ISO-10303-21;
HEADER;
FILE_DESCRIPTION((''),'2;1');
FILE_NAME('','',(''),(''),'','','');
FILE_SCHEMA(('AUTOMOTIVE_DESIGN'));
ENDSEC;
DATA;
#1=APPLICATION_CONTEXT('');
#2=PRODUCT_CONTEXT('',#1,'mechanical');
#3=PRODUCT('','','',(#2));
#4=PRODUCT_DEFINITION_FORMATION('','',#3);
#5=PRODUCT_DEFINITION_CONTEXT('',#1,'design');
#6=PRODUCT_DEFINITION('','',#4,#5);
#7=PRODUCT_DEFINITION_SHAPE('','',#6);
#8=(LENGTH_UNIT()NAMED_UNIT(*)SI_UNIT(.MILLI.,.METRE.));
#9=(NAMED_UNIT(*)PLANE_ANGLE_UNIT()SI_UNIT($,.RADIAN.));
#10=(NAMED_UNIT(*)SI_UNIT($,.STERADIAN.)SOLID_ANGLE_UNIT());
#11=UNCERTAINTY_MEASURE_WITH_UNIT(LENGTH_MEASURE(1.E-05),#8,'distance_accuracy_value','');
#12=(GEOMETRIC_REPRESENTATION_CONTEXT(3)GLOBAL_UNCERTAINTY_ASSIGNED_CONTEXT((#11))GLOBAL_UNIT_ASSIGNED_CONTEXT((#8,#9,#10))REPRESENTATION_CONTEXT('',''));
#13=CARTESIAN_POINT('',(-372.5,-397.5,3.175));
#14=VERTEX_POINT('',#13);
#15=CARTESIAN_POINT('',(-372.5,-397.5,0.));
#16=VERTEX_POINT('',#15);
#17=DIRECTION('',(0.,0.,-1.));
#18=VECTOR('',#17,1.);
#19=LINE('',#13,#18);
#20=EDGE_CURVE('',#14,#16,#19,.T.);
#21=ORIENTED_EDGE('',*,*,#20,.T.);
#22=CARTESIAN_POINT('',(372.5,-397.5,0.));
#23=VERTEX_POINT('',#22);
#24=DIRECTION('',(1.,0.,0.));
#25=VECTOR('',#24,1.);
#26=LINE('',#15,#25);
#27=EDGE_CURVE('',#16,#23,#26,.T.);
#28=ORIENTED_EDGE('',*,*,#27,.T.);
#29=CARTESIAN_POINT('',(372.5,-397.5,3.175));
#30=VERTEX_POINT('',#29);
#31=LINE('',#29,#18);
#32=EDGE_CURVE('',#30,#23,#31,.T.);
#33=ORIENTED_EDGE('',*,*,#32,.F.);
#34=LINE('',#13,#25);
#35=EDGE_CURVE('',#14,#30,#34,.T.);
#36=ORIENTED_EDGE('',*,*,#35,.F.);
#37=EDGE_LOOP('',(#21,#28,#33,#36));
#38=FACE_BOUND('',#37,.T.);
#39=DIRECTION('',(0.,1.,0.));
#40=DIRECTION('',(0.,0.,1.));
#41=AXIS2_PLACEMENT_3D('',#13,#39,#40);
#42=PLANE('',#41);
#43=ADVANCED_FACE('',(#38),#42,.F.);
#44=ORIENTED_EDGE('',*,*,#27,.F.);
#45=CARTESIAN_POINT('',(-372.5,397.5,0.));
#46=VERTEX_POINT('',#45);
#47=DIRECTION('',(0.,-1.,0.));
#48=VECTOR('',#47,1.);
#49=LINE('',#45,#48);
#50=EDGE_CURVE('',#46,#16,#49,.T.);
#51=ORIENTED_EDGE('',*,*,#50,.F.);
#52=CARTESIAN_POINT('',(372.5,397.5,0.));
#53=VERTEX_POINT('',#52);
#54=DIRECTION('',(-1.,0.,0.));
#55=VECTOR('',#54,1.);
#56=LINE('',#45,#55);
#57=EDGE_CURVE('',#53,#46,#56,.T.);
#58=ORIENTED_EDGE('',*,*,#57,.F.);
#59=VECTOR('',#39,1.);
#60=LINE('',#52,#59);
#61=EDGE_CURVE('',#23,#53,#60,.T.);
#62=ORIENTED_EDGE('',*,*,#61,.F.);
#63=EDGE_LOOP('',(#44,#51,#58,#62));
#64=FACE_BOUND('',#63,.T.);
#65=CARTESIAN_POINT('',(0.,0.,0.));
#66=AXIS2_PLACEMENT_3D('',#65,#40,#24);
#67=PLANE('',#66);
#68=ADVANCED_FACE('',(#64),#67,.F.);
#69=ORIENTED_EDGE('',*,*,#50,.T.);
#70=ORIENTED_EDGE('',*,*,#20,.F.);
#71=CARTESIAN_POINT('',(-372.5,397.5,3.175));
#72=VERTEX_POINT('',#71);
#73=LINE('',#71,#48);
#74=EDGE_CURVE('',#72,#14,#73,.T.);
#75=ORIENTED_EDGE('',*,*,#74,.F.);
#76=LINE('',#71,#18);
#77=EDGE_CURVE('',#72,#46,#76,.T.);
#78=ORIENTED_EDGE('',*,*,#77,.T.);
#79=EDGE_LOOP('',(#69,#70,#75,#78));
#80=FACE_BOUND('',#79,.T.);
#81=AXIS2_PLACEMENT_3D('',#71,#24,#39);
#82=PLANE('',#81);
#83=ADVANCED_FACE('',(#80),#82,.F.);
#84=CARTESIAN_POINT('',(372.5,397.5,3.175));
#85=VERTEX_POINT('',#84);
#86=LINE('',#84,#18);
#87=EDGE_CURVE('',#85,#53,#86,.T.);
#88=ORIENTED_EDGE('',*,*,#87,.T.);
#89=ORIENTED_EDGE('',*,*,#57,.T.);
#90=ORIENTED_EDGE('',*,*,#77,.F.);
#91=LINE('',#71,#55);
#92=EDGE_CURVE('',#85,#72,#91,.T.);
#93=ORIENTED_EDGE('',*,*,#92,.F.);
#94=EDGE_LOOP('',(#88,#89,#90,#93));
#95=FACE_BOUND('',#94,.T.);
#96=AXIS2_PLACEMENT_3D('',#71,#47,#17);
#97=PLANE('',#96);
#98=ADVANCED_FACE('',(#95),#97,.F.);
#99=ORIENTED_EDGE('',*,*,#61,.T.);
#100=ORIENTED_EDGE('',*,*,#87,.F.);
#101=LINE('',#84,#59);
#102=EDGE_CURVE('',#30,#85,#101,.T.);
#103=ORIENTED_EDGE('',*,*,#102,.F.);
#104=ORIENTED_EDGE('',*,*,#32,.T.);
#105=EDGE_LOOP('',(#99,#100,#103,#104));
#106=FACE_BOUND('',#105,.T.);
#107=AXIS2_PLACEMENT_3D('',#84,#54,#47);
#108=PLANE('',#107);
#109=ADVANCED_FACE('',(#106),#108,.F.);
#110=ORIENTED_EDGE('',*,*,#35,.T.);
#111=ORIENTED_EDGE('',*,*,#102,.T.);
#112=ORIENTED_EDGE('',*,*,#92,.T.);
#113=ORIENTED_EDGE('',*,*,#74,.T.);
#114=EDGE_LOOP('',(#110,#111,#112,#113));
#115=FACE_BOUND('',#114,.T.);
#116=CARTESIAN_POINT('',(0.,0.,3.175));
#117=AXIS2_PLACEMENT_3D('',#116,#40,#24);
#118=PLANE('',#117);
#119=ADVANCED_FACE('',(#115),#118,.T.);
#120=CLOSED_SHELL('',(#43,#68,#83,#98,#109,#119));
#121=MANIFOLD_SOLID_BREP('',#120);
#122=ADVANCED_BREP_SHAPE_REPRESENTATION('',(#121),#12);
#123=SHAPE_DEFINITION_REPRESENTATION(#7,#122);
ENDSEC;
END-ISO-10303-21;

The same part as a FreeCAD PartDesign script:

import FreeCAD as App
import Part
import Sketcher

V = App.Vector


def add_polygon(sketch, points):
    """Adds a closed chain of lines whose ends are joined by coincident constraints."""
    first, n = sketch.GeometryCount, len(points)
    for a, b in zip(points, points[1:] + points[:1]):
        sketch.addGeometry(Part.LineSegment(App.Vector(*a, 0), App.Vector(*b, 0)), False)
    for i in range(n):
        sketch.addConstraint(Sketcher.Constraint("Coincident", first + i, 2, first + (i + 1) % n, 1))

doc = App.newDocument("Part")
body = doc.addObject("PartDesign::Body", "Body")

sketch1 = body.newObject("Sketcher::SketchObject", "Sketch")
sketch1.AttachmentSupport = (doc.getObject("XY_Plane"), [""])
sketch1.MapMode = "FlatFace"
add_polygon(sketch1, [(-372, 398), (-372, -398), (372, -398), (372, 398)])
sketch1.addConstraint(Sketcher.Constraint("Vertical", 0))
sketch1.addConstraint(Sketcher.Constraint("Horizontal", 1))
sketch1.addConstraint(Sketcher.Constraint("Vertical", 2))
sketch1.addConstraint(Sketcher.Constraint("Horizontal", 3))
sketch1.addConstraint(Sketcher.Constraint("Symmetric", 0, 2, 2, 2, -1, 1))
sketch1.addConstraint(Sketcher.Constraint("DistanceX", 1, 1, 1, 2, 745.0))
sketch1.addConstraint(Sketcher.Constraint("DistanceY", 0, 2, 0, 1, 795.0))
pad1 = body.newObject("PartDesign::Pad", "Pad")
pad1.Profile = sketch1
pad1.Length = 3.175

doc.recompute()
